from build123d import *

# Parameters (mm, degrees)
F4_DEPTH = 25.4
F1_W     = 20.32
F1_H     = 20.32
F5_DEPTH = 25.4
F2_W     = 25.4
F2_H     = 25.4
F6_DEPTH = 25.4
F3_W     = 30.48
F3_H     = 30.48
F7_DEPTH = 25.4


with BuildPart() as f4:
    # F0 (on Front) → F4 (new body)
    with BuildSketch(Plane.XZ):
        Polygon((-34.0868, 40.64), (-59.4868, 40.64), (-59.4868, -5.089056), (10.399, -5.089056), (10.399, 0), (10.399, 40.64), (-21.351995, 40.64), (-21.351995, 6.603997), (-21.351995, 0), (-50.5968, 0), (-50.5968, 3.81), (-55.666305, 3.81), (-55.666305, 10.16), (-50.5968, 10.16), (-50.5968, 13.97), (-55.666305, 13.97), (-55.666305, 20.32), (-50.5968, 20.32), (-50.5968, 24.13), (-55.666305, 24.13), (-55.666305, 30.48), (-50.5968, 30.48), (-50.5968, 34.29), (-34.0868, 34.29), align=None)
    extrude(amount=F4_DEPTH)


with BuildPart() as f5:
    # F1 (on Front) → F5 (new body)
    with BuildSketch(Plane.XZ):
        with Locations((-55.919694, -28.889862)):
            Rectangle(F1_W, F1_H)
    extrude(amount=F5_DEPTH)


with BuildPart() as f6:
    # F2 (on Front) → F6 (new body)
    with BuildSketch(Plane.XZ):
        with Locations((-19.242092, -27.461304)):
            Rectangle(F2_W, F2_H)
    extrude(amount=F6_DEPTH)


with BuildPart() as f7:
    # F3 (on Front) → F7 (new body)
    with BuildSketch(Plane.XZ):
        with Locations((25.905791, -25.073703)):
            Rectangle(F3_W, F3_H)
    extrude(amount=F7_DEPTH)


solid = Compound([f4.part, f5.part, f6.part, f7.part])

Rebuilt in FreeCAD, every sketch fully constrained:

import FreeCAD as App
import Part
import Sketcher

V = App.Vector
Q = App.Units.Quantity


def add_polygon(sketch, points):
    """Adds a closed chain of lines whose ends are joined by coincident constraints."""
    first, n = sketch.GeometryCount, len(points)
    for a, b in zip(points, points[1:] + points[:1]):
        sketch.addGeometry(Part.LineSegment(App.Vector(*a, 0), App.Vector(*b, 0)), False)
    for i in range(n):
        sketch.addConstraint(Sketcher.Constraint("Coincident", first + i, 2, first + (i + 1) % n, 1))

doc = App.newDocument("Part")
params = doc.addObject("Spreadsheet::Sheet", "Params")
for row, (alias, value) in enumerate([
    ("sketch1_width", "1 in"),
    ("sketch1_height", "1.6 in"),
    ("sketch1_width2", "0.65 in"),
    ("sketch1_height2", "0.15 in"),
    ("pad1_length", "1 in"),
    ("sketch2_width", "0.8 in"),
    ("pad2_length", "1 in"),
    ("sketch3_width", "1 in"),
    ("pad3_length", "1 in"),
    ("sketch4_width", "1.2 in"),
    ("pad4_length", "1 in"),
], start=1):
    params.set(f"A{row}", alias)
    params.set(f"B{row}", "=" + value)
    params.setAlias(f"B{row}", alias)

body = doc.addObject("PartDesign::Body", "Body")

# Sketch on XZ plane
sketch1 = body.newObject("Sketcher::SketchObject", "Sketch")
sketch1.AttachmentSupport = (doc.getObject("XZ_Plane"), [""])
sketch1.MapMode = "FlatFace"
add_polygon(sketch1, [(-34.1, 40.6), (-59.5, 40.6), (-59.5, -5.1), (10.4, -5.1), (10.4, 40.6), (-21.4, 40.6), (-21.4, 0), (-50.6, 0), (-50.6, 3.8), (-55.7, 3.8), (-55.7, 10.2), (-50.6, 10.2), (-50.6, 14), (-55.7, 14), (-55.7, 20.3), (-50.6, 20.3), (-50.6, 24.1), (-55.7, 24.1), (-55.7, 30.5), (-50.6, 30.5), (-50.6, 34.3), (-34.1, 34.3)])  # lines 0-21
sketch1.addConstraint([
    Sketcher.Constraint("Horizontal", 0),
    Sketcher.Constraint("Vertical", 1),
    Sketcher.Constraint("Horizontal", 2),
    Sketcher.Constraint("Vertical", 3),
    Sketcher.Constraint("Horizontal", 4),
    Sketcher.Constraint("Vertical", 5),
    Sketcher.Constraint("Horizontal", 6),
    Sketcher.Constraint("Vertical", 7),
    Sketcher.Constraint("Horizontal", 8),
    Sketcher.Constraint("Vertical", 9),
    Sketcher.Constraint("Horizontal", 10),
    Sketcher.Constraint("Vertical", 11),
    Sketcher.Constraint("Horizontal", 12),
    Sketcher.Constraint("Vertical", 13),
    Sketcher.Constraint("Horizontal", 14),
    Sketcher.Constraint("Vertical", 15),
    Sketcher.Constraint("Horizontal", 16),
    Sketcher.Constraint("Vertical", 17),
    Sketcher.Constraint("Horizontal", 18),
    Sketcher.Constraint("Vertical", 19),
    Sketcher.Constraint("Horizontal", 20),
    Sketcher.Constraint("Vertical", 21),
    Sketcher.Constraint("PointOnObject", 5, 2, -1),
    Sketcher.Constraint("Horizontal", 0, 2, 3, 2),
    Sketcher.Constraint("Vertical", 7, 2, 10, 2),
    Sketcher.Constraint("Vertical", 9, 2, 12, 2),
    Sketcher.Constraint("Vertical", 11, 2, 14, 2),
    Sketcher.Constraint("Vertical", 13, 2, 16, 2),
    Sketcher.Constraint("Vertical", 15, 2, 18, 2),
    Sketcher.Constraint("Equal", 7, 11),
    Sketcher.Constraint("Equal", 9, 13),
    Sketcher.Constraint("Equal", 11, 15),
    Sketcher.Constraint("Equal", 13, 17),
    Sketcher.Constraint("Equal", 15, 19),
    Sketcher.Constraint("Equal", 17, 21),
    Sketcher.Constraint("DistanceX", 0, 2, 0, 1, Q("1 in")),
    Sketcher.Constraint("DistanceY", 5, 2, 5, 1, Q("1.6 in")),
    Sketcher.Constraint("DistanceX", 20, 1, 20, 2, Q("0.65 in")),
    Sketcher.Constraint("DistanceY", 7, 1, 7, 2, Q("0.15 in")),
    Sketcher.Constraint("DistanceX", 0, 2, -1, 1, Q("2.342 in")),
    Sketcher.Constraint("DistanceX", 2, 1, 2, 2, Q("69.8858 mm")),
    Sketcher.Constraint("DistanceX", 4, 2, 4, 1, Q("31.750995 mm")),
    Sketcher.Constraint("DistanceX", 8, 2, 8, 1, Q("5.069505 mm")),
    Sketcher.Constraint("DistanceY", 1, 2, 1, 1, Q("45.729056 mm")),
])
sketch1.setExpression("Constraints[57]", "Params.sketch1_width")
sketch1.setExpression("Constraints[58]", "Params.sketch1_height")
sketch1.setExpression("Constraints[59]", "Params.sketch1_width2")
sketch1.setExpression("Constraints[60]", "Params.sketch1_height2")
pad1 = body.newObject("PartDesign::Pad", "Pad")
pad1.Profile = sketch1
pad1.setExpression("Length", "Params.pad1_length")
body2 = doc.addObject("PartDesign::Body", "Body001")

# Sketch on XZ plane
sketch2 = body2.newObject("Sketcher::SketchObject", "Sketch001")
sketch2.AttachmentSupport = (doc.getObject("XZ_Plane001"), [""])
sketch2.MapMode = "FlatFace"
add_polygon(sketch2, [(-66, -19), (-66, -39), (-46, -39), (-46, -19)])  # lines 0-3
sketch2.addConstraint([
    Sketcher.Constraint("Vertical", 0),
    Sketcher.Constraint("Horizontal", 1),
    Sketcher.Constraint("Vertical", 2),
    Sketcher.Constraint("Horizontal", 3),
    Sketcher.Constraint("Equal", 3, 0),
    Sketcher.Constraint("DistanceX", 1, 1, 1, 2, Q("0.8 in")),
    Sketcher.Constraint("DistanceY", 0, 2, -1, 1, Q("39.049862 mm")),
    Sketcher.Constraint("DistanceX", 0, 2, -1, 1, Q("66.079694 mm")),
])
sketch2.setExpression("Constraints[9]", "Params.sketch2_width")
pad2 = body2.newObject("PartDesign::Pad", "Pad001")
pad2.Profile = sketch2
pad2.setExpression("Length", "Params.pad2_length")
body3 = doc.addObject("PartDesign::Body", "Body002")

# Sketch on XZ plane
sketch3 = body3.newObject("Sketcher::SketchObject", "Sketch002")
sketch3.AttachmentSupport = (doc.getObject("XZ_Plane002"), [""])
sketch3.MapMode = "FlatFace"
add_polygon(sketch3, [(-32, -15), (-32, -40), (-7, -40), (-7, -15)])  # lines 0-3
sketch3.addConstraint([
    Sketcher.Constraint("Vertical", 0),
    Sketcher.Constraint("Horizontal", 1),
    Sketcher.Constraint("Vertical", 2),
    Sketcher.Constraint("Horizontal", 3),
    Sketcher.Constraint("Equal", 3, 0),
    Sketcher.Constraint("DistanceX", 1, 1, 1, 2, Q("1 in")),
    Sketcher.Constraint("DistanceX", 0, 2, -1, 1, Q("31.942092 mm")),
    Sketcher.Constraint("DistanceY", 0, 2, -1, 1, Q("40.161304 mm")),
])
sketch3.setExpression("Constraints[9]", "Params.sketch3_width")
pad3 = body3.newObject("PartDesign::Pad", "Pad002")
pad3.Profile = sketch3
pad3.setExpression("Length", "Params.pad3_length")
body4 = doc.addObject("PartDesign::Body", "Body003")

# Sketch on XZ plane
sketch4 = body4.newObject("Sketcher::SketchObject", "Sketch003")
sketch4.AttachmentSupport = (doc.getObject("XZ_Plane003"), [""])
sketch4.MapMode = "FlatFace"
add_polygon(sketch4, [(11, -10), (11, -40), (41, -40), (41, -10)])  # lines 0-3
sketch4.addConstraint([
    Sketcher.Constraint("Vertical", 0),
    Sketcher.Constraint("Horizontal", 1),
    Sketcher.Constraint("Vertical", 2),
    Sketcher.Constraint("Horizontal", 3),
    Sketcher.Constraint("Equal", 3, 0),
    Sketcher.Constraint("DistanceX", 1, 1, 1, 2, Q("1.2 in")),
    Sketcher.Constraint("DistanceX", -1, 1, 0, 2, Q("10.665791 mm")),
    Sketcher.Constraint("DistanceY", 0, 2, -1, 1, Q("40.313703 mm")),
])
sketch4.setExpression("Constraints[9]", "Params.sketch4_width")
pad4 = body4.newObject("PartDesign::Pad", "Pad003")
pad4.Profile = sketch4
pad4.setExpression("Length", "Params.pad4_length")

doc.recompute()
